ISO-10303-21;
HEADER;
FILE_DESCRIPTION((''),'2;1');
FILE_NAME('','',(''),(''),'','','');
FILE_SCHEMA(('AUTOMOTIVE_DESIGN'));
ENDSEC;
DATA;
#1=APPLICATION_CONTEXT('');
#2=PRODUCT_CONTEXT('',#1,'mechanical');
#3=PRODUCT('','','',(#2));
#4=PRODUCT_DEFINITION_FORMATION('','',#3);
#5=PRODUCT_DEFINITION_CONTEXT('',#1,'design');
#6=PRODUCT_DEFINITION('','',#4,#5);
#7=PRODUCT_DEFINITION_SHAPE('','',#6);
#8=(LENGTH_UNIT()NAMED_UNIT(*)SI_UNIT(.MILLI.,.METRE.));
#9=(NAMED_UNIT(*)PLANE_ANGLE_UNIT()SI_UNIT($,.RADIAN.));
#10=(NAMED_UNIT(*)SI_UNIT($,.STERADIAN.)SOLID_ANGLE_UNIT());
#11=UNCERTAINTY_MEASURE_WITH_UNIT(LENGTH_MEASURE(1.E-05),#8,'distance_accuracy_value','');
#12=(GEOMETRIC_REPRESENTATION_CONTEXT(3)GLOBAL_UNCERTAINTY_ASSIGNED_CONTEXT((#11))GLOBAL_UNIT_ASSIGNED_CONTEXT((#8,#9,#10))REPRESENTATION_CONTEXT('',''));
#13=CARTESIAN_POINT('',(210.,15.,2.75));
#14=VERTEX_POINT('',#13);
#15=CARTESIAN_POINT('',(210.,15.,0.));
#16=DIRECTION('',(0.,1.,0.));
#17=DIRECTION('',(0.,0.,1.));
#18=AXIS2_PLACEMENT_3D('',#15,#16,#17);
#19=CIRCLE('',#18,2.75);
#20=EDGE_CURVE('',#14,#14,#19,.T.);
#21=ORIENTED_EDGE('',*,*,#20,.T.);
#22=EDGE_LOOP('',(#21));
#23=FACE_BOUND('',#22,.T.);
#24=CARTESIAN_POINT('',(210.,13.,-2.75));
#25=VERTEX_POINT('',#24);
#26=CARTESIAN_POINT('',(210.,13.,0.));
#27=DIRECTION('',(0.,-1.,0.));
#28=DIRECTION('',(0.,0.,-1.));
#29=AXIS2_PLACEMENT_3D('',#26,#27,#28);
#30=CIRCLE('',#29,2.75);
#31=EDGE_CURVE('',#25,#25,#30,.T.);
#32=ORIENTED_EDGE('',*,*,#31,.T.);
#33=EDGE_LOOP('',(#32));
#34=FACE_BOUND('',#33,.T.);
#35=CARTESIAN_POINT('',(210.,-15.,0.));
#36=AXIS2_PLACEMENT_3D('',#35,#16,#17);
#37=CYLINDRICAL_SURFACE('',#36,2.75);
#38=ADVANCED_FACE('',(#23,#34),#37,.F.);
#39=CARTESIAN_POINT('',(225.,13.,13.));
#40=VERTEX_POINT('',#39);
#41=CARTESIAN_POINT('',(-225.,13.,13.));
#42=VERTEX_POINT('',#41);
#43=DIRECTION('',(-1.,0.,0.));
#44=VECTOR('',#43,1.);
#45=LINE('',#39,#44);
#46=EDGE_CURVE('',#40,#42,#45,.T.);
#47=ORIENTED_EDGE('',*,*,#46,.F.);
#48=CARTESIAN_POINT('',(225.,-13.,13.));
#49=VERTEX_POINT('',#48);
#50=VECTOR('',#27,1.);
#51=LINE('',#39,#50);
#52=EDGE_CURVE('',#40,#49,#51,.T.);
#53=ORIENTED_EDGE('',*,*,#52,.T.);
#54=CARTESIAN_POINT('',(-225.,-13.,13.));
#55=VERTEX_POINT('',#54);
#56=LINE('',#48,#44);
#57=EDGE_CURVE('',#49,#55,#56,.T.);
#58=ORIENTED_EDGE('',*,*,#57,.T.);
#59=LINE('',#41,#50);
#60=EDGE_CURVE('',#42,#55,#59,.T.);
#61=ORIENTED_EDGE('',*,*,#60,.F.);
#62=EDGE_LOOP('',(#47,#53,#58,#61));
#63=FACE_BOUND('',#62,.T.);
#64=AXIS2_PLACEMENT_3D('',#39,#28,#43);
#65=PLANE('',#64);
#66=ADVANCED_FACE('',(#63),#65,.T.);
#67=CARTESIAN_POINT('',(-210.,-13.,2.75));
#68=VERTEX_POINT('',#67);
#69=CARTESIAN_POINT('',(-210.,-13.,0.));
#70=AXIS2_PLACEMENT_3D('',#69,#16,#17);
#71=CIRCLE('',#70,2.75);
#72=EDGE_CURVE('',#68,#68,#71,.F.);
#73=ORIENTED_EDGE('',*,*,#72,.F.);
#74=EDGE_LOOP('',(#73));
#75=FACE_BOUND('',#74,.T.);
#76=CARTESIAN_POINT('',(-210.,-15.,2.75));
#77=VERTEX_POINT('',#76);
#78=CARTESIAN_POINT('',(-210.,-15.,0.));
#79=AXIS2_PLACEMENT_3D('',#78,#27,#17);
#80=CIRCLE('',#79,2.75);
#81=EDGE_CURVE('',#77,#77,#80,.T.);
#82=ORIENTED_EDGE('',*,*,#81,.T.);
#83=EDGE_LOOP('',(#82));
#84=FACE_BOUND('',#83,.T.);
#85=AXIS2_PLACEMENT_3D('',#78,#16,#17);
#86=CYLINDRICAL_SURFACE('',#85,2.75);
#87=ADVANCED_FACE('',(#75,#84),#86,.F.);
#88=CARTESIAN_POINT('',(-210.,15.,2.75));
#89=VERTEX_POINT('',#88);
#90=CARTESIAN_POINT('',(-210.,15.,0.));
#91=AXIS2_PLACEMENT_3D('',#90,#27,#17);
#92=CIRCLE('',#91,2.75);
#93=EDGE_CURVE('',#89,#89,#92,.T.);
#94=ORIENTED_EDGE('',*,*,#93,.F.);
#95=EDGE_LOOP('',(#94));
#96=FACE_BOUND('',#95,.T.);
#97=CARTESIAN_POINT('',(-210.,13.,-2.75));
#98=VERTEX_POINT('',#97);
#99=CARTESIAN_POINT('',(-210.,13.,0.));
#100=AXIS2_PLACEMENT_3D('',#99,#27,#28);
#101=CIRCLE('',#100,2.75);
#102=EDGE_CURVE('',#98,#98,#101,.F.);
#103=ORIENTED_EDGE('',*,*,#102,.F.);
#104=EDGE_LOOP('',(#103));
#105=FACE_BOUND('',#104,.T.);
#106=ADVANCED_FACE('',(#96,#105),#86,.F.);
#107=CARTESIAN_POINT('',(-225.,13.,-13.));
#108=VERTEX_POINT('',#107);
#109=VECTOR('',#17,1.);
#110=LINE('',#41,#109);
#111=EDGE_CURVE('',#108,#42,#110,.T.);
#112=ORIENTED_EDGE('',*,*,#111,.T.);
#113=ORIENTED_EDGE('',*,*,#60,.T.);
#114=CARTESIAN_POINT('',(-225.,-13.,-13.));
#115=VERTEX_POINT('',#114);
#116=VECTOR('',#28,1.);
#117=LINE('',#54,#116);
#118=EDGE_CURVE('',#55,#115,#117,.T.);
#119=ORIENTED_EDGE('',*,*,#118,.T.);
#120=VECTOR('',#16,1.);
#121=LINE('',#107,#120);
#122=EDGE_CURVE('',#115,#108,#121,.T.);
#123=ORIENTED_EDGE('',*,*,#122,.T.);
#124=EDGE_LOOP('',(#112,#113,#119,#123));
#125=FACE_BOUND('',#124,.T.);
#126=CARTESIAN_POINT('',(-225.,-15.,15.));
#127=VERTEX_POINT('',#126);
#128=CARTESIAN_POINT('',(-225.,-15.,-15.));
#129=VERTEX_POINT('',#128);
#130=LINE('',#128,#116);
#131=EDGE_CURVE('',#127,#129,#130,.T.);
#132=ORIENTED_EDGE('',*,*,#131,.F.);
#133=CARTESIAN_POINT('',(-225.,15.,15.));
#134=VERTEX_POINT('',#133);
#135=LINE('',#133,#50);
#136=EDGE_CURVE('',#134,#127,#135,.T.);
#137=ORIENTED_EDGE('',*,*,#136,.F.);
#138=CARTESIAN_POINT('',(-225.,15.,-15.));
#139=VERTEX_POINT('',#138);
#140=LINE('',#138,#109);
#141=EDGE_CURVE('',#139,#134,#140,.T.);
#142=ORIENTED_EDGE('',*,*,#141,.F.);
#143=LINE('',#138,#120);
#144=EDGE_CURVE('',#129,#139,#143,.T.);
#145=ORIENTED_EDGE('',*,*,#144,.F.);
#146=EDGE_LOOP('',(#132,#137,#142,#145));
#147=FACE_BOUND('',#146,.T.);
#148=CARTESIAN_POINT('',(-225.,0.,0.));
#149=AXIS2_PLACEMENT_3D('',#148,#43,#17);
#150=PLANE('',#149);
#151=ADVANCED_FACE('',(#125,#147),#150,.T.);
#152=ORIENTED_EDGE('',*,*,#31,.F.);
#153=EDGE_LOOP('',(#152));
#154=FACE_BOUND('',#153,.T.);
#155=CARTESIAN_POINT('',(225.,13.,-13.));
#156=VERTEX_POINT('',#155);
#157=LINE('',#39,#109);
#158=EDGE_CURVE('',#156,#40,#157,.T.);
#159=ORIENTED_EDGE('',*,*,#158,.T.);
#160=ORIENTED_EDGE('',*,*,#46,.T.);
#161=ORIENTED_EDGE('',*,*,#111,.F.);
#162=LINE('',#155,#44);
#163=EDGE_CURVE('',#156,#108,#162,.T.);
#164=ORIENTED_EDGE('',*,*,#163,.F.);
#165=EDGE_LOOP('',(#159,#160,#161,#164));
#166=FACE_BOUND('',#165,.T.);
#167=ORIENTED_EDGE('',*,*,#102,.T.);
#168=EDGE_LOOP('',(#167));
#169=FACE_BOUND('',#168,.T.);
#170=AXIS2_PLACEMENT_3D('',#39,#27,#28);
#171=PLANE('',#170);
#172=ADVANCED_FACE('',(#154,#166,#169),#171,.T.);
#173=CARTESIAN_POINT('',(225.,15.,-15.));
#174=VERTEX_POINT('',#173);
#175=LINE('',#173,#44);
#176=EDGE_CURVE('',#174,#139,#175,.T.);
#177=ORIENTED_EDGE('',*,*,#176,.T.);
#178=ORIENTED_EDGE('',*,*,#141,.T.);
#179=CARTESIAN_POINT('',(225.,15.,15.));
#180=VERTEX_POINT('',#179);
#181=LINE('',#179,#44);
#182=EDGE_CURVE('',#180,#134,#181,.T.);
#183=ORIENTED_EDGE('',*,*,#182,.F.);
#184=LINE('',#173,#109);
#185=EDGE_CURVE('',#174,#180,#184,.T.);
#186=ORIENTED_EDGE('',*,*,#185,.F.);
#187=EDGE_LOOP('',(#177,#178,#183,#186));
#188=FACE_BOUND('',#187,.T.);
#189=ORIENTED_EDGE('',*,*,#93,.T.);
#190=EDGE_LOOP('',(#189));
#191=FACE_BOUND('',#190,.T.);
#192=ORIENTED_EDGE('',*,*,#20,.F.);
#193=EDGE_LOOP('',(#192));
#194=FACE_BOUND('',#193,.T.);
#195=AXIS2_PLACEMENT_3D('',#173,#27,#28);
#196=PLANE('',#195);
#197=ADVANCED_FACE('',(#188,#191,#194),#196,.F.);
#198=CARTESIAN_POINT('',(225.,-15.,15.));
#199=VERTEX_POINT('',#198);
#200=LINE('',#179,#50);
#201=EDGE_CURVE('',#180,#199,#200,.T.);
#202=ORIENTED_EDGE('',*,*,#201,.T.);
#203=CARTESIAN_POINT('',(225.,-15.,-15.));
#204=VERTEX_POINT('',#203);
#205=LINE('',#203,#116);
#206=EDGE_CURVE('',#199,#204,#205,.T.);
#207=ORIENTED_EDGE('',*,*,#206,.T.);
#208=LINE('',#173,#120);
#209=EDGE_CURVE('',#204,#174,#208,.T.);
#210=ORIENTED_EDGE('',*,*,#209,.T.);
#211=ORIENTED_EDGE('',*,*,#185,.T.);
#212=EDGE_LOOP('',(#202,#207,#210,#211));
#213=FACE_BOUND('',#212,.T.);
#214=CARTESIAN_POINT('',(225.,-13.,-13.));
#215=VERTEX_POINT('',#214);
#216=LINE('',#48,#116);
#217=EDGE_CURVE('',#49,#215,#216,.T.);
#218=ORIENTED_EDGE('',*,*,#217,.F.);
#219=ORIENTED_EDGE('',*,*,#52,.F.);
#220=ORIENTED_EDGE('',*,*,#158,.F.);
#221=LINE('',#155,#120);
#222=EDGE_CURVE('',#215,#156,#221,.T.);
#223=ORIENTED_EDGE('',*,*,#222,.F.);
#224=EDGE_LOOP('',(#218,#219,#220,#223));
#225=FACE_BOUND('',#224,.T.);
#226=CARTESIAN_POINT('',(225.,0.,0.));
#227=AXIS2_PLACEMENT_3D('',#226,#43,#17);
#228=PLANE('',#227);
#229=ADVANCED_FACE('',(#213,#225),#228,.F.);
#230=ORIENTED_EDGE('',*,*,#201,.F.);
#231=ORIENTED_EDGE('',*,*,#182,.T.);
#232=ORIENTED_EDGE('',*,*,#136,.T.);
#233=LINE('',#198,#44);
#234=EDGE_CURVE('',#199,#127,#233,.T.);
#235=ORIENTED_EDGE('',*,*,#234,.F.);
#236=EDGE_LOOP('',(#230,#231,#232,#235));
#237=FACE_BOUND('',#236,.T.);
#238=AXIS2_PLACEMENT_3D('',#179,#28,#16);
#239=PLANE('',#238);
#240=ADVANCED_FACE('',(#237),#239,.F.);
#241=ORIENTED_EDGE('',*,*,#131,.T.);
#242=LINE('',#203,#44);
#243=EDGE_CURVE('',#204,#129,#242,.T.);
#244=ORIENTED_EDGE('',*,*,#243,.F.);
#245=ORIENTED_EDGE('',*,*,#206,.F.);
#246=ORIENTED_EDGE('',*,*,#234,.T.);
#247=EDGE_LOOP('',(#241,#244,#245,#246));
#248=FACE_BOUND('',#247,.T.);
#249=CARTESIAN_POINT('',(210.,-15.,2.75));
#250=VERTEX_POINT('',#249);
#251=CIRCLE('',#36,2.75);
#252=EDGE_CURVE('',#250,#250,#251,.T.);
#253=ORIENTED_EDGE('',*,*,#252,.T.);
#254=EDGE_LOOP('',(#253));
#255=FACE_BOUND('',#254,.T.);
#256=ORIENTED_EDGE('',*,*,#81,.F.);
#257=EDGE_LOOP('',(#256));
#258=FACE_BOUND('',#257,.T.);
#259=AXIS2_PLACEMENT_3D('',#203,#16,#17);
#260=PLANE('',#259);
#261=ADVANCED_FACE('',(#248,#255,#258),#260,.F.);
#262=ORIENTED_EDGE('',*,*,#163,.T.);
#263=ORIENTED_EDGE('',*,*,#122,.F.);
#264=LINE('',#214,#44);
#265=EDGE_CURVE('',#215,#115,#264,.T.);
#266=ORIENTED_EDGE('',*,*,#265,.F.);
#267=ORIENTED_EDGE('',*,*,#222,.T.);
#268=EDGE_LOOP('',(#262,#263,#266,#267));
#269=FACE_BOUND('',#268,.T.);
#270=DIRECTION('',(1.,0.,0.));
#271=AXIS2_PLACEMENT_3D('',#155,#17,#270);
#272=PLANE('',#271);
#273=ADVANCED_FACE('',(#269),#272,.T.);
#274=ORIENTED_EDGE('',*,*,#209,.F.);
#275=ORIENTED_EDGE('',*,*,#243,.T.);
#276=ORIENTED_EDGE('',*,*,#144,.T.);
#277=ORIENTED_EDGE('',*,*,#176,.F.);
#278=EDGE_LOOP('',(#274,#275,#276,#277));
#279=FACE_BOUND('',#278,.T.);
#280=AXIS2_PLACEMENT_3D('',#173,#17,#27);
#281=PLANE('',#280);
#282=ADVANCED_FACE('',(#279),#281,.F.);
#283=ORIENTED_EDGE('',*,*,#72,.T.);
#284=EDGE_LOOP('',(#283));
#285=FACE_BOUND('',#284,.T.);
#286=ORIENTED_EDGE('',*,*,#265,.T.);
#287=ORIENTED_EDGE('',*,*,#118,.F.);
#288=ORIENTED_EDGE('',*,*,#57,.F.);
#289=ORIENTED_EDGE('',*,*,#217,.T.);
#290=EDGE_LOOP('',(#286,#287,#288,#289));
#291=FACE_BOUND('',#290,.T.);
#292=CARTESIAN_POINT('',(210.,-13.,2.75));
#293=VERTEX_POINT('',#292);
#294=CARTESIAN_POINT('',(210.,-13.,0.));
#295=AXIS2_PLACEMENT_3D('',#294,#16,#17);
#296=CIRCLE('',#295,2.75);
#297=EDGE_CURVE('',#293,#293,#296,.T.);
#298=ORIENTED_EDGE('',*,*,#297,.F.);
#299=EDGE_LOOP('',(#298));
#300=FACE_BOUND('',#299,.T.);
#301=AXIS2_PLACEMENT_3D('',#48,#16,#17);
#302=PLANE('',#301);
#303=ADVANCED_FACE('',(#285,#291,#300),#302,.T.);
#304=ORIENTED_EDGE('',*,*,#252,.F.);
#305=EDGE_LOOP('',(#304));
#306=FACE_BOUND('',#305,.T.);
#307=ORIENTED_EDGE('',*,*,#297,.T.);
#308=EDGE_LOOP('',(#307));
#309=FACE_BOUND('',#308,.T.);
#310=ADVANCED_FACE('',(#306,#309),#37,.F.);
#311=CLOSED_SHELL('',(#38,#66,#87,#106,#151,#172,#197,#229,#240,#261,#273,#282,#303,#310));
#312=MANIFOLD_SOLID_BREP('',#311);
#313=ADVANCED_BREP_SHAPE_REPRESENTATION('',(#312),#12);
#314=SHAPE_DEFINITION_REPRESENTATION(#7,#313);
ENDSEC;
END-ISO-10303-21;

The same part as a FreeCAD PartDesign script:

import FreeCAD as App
import Part
import Sketcher

V = App.Vector
Q = App.Units.Quantity

doc = App.newDocument("Part")
body = doc.addObject("PartDesign::Body", "Body")

sketch1 = body.newObject("Sketcher::SketchObject", "Sketch")
sketch1.AttachmentSupport = (doc.getObject("YZ_Plane"), [""])
sketch1.MapMode = "FlatFace"
sketch1.addGeometry(Part.LineSegment(V(15, 15, 0), V(-15, 15, 0)), False)
sketch1.addGeometry(Part.LineSegment(V(-15, 15, 0), V(-15, -15, 0)), False)
sketch1.addGeometry(Part.LineSegment(V(-15, -15, 0), V(15, -15, 0)), False)
sketch1.addGeometry(Part.LineSegment(V(15, -15, 0), V(15, 15, 0)), False)
sketch1.addGeometry(Part.LineSegment(V(-13, -13, 0), V(-13, 13, 0)), False)
sketch1.addGeometry(Part.LineSegment(V(-13, 13, 0), V(13, 13, 0)), False)
sketch1.addGeometry(Part.LineSegment(V(13, 13, 0), V(13, -13, 0)), False)
sketch1.addGeometry(Part.LineSegment(V(13, -13, 0), V(-13, -13, 0)), False)
sketch1.addConstraint(Sketcher.Constraint("Coincident", 0, 2, 1, 1))
sketch1.addConstraint(Sketcher.Constraint("Coincident", 1, 2, 2, 1))
sketch1.addConstraint(Sketcher.Constraint("Coincident", 2, 2, 3, 1))
sketch1.addConstraint(Sketcher.Constraint("Coincident", 3, 2, 0, 1))
sketch1.addConstraint(Sketcher.Constraint("Coincident", 4, 2, 5, 1))
sketch1.addConstraint(Sketcher.Constraint("Coincident", 5, 2, 6, 1))
sketch1.addConstraint(Sketcher.Constraint("Coincident", 6, 2, 7, 1))
sketch1.addConstraint(Sketcher.Constraint("Coincident", 7, 2, 4, 1))
sketch1.addConstraint(Sketcher.Constraint("Horizontal", 0))
sketch1.addConstraint(Sketcher.Constraint("Vertical", 1))
sketch1.addConstraint(Sketcher.Constraint("Horizontal", 2))
sketch1.addConstraint(Sketcher.Constraint("Vertical", 3))
sketch1.addConstraint(Sketcher.Constraint("Vertical", 4))
sketch1.addConstraint(Sketcher.Constraint("Horizontal", 5))
sketch1.addConstraint(Sketcher.Constraint("Vertical", 6))
sketch1.addConstraint(Sketcher.Constraint("Horizontal", 7))
sketch1.addConstraint(Sketcher.Constraint("Symmetric", 0, 2, 2, 2, -1, 1))
sketch1.addConstraint(Sketcher.Constraint("Symmetric", 4, 2, 6, 2, -1, 1))
sketch1.addConstraint(Sketcher.Constraint("Equal", 2, 1))
sketch1.addConstraint(Sketcher.Constraint("Equal", 7, 4))
sketch1.addConstraint(Sketcher.Constraint("DistanceX", 0, 2, 0, 1, Q("30 mm")))
sketch1.addConstraint(Sketcher.Constraint("DistanceX", 5, 1, 5, 2, Q("26 mm")))
pad1 = body.newObject("PartDesign::Pad", "Pad")
pad1.Profile = sketch1
pad1.Length = 450
pad1.Midplane = True

sketch2 = body.newObject("Sketcher::SketchObject", "Sketch001")
sketch2.AttachmentSupport = (doc.getObject("XZ_Plane"), [""])
sketch2.MapMode = "FlatFace"
sketch2.addGeometry(Part.Circle(V(210, 0, 0), V(0, 0, 1), 2.8), False)
sketch2.addConstraint(Sketcher.Constraint("PointOnObject", 0, 3, -1))
sketch2.addConstraint(Sketcher.Constraint("Diameter", 0, Q("5.5 mm")))
sketch2.addConstraint(Sketcher.Constraint("DistanceX", -1, 1, 0, 3, Q("210 mm")))
pocket1 = body.newObject("PartDesign::Pocket", "Pocket")
pocket1.Profile = sketch2
pocket1.Length = 453.995575
pocket1.Midplane = True
doc.recompute()

mirrored = body.newObject("PartDesign::Mirrored", "Mirrored")
mirrored.Originals = [pocket1]
mirrored.MirrorPlane = (doc.getObject("YZ_Plane"), [""])
body.Tip = mirrored

doc.recompute()
